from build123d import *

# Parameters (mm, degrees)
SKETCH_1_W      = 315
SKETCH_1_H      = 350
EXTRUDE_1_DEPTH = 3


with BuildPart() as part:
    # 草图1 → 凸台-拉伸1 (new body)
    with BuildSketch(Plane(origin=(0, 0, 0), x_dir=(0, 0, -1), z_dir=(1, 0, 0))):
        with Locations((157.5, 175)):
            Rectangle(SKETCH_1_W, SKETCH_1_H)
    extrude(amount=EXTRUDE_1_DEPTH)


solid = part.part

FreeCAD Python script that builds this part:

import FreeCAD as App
import Part
import Sketcher
from FreeCAD import Vector
Q = App.Units.Quantity


def add_polygon(sketch, points):
    """Adds a closed chain of lines whose ends are joined by coincident constraints."""
    first, n = sketch.GeometryCount, len(points)
    for a, b in zip(points, points[1:] + points[:1]):
        sketch.addGeometry(Part.LineSegment(App.Vector(*a, 0), App.Vector(*b, 0)), False)
    for i in range(n):
        sketch.addConstraint(Sketcher.Constraint("Coincident", first + i, 2, first + (i + 1) % n, 1))

doc = App.newDocument("Part")
params = doc.addObject("Spreadsheet::Sheet", "Params")
for row, (alias, value) in enumerate([
    ("sketch1_width", "350 mm"),
    ("sketch1_height", "315 mm"),
    ("pad1_length", "3 mm"),
], start=1):
    params.set(f"A{row}", alias)
    params.set(f"B{row}", "=" + value)
    params.setAlias(f"B{row}", alias)

body = doc.addObject("PartDesign::Body", "Body")

sketch1 = body.newObject("Sketcher::SketchObject", "Sketch")
sketch1.AttachmentSupport = (doc.getObject("YZ_Plane"), [""])
sketch1.MapMode = "FlatFace"
add_polygon(sketch1, [(350, 0), (0, 0), (0, -315), (350, -315)])
sketch1.addConstraint([
    Sketcher.Constraint("Horizontal", 0),
    Sketcher.Constraint("Vertical", 1),
    Sketcher.Constraint("Horizontal", 2),
    Sketcher.Constraint("Vertical", 3),
    Sketcher.Constraint("Coincident", 0, 2, -1, 1),
    Sketcher.Constraint("DistanceX", 0, 2, 0, 1, Q("350 mm")),
    Sketcher.Constraint("DistanceY", 1, 2, 1, 1, Q("315 mm")),
])
sketch1.setExpression("Constraints[9]", "Params.sketch1_width")
sketch1.setExpression("Constraints[10]", "Params.sketch1_height")
pad1 = body.newObject("PartDesign::Pad", "Pad")
pad1.Profile = sketch1
pad1.setExpression("Length", "Params.pad1_length")

doc.recompute()
